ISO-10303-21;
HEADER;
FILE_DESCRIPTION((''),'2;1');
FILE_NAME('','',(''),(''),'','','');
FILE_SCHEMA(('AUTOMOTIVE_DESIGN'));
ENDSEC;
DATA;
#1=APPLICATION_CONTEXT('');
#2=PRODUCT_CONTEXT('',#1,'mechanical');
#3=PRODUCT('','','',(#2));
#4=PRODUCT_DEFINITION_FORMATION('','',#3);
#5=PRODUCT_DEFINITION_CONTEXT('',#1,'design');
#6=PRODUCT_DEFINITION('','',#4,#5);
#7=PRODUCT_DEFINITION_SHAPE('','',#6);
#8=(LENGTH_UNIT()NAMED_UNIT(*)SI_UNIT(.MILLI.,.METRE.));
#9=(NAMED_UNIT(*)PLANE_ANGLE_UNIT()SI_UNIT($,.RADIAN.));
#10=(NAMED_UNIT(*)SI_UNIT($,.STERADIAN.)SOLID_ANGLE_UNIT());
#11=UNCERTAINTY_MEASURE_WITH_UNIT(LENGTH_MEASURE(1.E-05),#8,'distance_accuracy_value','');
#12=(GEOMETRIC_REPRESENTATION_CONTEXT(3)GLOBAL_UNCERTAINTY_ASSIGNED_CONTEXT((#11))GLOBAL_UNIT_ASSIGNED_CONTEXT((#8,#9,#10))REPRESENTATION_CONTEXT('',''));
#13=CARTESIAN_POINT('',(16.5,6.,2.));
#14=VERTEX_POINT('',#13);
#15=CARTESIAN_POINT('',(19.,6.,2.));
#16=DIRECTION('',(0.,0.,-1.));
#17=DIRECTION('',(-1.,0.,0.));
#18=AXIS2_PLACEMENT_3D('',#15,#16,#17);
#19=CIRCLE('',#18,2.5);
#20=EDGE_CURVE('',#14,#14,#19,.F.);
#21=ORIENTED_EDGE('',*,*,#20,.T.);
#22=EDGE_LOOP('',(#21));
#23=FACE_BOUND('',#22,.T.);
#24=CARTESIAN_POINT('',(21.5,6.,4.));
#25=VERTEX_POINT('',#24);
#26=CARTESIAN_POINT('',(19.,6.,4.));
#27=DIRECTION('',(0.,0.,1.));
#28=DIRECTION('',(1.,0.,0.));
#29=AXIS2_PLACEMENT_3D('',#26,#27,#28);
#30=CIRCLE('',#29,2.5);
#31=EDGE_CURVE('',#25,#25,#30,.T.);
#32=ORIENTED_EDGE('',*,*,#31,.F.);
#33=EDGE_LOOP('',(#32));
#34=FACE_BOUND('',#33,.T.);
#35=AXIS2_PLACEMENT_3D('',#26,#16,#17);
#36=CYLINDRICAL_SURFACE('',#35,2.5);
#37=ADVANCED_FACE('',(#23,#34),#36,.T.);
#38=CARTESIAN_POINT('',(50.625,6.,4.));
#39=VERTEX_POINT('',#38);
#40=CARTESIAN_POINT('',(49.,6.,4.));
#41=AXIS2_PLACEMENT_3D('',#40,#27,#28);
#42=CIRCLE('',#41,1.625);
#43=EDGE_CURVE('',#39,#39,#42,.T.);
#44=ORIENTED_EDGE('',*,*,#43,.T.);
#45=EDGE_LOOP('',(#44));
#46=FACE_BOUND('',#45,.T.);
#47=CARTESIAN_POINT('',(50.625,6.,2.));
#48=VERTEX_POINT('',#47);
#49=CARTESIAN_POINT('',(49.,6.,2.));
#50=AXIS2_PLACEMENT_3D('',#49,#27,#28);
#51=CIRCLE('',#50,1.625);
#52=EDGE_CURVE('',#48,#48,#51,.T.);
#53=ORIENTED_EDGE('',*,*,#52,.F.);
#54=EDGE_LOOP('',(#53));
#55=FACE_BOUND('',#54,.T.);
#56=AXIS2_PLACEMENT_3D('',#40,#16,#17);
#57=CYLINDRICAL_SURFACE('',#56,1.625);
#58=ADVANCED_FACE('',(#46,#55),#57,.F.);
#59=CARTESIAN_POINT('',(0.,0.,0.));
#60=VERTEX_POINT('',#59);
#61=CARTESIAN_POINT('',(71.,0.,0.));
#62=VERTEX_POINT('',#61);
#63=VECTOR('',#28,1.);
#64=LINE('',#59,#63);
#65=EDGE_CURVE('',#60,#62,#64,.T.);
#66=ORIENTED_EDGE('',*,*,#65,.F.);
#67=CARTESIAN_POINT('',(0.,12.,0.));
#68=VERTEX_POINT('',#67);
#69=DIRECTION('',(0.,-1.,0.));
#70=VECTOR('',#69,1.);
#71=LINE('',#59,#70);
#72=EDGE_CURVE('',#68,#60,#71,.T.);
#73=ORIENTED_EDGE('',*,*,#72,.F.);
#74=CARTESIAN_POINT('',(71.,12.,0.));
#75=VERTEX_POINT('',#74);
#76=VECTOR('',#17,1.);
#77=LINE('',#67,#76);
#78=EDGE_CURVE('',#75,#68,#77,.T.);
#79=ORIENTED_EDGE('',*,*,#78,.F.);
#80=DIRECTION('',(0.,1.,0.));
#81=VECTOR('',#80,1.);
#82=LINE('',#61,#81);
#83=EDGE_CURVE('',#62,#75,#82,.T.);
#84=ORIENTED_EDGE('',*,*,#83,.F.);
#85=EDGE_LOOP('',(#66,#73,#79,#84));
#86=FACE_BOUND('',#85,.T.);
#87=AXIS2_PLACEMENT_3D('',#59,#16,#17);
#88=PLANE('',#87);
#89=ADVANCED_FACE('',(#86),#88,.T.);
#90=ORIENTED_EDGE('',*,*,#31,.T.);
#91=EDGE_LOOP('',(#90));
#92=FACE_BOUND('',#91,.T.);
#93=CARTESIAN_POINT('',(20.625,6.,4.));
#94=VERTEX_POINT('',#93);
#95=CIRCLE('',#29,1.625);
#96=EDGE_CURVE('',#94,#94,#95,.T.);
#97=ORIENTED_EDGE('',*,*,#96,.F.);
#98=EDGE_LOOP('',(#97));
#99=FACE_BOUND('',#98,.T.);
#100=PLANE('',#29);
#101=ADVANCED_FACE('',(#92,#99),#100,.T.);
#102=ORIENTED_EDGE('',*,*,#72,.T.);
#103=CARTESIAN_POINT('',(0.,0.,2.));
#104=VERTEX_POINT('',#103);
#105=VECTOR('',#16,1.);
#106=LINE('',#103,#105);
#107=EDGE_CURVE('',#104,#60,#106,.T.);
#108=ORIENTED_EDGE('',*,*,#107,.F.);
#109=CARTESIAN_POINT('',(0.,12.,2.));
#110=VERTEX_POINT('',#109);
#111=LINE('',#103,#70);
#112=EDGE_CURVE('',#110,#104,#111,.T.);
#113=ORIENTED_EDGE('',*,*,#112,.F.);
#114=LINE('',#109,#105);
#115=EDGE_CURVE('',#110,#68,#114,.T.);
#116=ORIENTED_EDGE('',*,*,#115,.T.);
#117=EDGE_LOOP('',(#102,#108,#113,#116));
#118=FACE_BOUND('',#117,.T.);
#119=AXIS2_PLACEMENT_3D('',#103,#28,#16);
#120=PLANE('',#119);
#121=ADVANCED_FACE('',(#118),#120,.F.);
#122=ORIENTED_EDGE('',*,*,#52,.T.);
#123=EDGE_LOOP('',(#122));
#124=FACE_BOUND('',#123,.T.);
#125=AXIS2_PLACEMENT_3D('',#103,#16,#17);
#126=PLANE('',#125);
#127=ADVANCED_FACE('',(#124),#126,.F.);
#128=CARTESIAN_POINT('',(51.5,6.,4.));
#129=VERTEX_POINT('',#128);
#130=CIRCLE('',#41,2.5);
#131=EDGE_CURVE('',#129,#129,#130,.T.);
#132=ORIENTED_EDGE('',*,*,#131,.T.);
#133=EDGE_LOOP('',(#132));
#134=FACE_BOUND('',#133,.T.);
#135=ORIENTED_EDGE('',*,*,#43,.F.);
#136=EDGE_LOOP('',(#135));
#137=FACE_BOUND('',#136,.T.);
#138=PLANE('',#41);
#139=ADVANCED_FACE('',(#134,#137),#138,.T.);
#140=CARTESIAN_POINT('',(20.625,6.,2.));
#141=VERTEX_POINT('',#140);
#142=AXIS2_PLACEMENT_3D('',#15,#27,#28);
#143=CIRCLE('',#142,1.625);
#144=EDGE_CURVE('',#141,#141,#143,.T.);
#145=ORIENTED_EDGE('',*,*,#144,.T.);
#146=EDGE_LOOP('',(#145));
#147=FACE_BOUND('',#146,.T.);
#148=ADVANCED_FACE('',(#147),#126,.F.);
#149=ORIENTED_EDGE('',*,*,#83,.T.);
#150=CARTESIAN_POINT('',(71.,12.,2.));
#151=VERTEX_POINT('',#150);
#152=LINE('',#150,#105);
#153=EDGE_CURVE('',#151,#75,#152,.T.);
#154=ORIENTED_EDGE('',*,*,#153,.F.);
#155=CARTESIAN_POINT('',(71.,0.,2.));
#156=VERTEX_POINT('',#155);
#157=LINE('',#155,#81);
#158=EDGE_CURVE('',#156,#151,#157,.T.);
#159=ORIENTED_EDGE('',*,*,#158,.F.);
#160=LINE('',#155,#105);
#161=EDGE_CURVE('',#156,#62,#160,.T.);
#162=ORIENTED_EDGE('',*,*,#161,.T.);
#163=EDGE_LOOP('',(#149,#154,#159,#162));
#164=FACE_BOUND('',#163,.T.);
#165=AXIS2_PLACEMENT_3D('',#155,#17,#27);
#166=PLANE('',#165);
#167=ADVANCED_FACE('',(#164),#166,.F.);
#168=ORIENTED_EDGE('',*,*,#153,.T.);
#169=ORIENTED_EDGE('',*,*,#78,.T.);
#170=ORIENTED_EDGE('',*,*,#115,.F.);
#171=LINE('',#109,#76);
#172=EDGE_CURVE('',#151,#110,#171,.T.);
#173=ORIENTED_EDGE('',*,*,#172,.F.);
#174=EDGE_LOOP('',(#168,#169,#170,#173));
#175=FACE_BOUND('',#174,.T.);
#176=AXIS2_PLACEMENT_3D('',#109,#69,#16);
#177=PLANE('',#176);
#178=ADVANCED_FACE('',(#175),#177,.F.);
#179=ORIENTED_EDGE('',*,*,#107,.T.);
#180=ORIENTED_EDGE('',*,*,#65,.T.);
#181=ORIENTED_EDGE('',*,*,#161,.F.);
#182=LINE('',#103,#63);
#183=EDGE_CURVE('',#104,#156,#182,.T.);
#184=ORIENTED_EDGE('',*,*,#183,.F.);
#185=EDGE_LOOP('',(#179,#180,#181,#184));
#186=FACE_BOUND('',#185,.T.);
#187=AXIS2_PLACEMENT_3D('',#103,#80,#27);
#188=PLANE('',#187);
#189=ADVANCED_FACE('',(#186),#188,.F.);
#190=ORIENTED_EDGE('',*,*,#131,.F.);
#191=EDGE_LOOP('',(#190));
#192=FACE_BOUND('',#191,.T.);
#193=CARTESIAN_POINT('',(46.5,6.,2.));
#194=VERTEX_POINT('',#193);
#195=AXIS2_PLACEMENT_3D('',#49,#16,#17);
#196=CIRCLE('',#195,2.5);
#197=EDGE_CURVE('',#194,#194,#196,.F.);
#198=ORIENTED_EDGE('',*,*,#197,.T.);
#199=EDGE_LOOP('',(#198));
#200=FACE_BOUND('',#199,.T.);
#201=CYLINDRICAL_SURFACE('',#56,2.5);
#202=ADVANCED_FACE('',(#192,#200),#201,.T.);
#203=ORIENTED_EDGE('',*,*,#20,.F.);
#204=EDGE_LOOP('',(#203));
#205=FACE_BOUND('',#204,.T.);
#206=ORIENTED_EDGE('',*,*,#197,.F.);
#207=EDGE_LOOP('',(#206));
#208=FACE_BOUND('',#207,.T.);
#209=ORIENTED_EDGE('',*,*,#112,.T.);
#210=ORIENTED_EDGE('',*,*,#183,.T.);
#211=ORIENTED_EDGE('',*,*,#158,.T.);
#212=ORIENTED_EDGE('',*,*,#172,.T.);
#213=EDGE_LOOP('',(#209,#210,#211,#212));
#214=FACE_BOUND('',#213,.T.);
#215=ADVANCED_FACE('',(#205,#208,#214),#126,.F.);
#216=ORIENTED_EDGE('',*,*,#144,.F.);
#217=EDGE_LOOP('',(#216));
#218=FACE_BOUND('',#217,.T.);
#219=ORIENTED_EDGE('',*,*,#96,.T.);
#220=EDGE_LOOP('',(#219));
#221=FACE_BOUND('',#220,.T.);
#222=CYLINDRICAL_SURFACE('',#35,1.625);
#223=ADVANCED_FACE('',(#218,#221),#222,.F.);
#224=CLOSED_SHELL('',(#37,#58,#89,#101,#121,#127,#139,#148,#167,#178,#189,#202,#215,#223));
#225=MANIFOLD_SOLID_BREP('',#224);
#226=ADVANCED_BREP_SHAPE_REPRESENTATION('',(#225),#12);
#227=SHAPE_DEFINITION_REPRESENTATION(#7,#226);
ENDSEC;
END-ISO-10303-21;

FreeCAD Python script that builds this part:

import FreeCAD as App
import Part
import Sketcher
from FreeCAD import Vector


def add_polygon(sketch, points):
    """Adds a closed chain of lines whose ends are joined by coincident constraints."""
    first, n = sketch.GeometryCount, len(points)
    for a, b in zip(points, points[1:] + points[:1]):
        sketch.addGeometry(Part.LineSegment(App.Vector(*a, 0), App.Vector(*b, 0)), False)
    for i in range(n):
        sketch.addConstraint(Sketcher.Constraint("Coincident", first + i, 2, first + (i + 1) % n, 1))

doc = App.newDocument("Part")
body = doc.addObject("PartDesign::Body", "Body")

sketch1 = body.newObject("Sketcher::SketchObject", "Sketch")
sketch1.AttachmentSupport = (doc.getObject("XY_Plane"), [""])
sketch1.MapMode = "FlatFace"
add_polygon(sketch1, [(0, 12), (0, 0), (71, 0), (71, 12)])
sketch1.addConstraint(Sketcher.Constraint("Vertical", 0))
sketch1.addConstraint(Sketcher.Constraint("Horizontal", 1))
sketch1.addConstraint(Sketcher.Constraint("Vertical", 2))
sketch1.addConstraint(Sketcher.Constraint("Horizontal", 3))
sketch1.addConstraint(Sketcher.Constraint("Coincident", 0, 2, -1, 1))
sketch1.addConstraint(Sketcher.Constraint("DistanceX", 1, 1, 1, 2, 71.0))
sketch1.addConstraint(Sketcher.Constraint("DistanceY", 0, 2, 0, 1, 12.0))
pad1 = body.newObject("PartDesign::Pad", "Pad")
pad1.Profile = sketch1
pad1.Length = 2

sketch2 = body.newObject("Sketcher::SketchObject", "Sketch001")
sketch2.AttachmentSupport = (doc.getObject("XY_Plane"), [""])
sketch2.MapMode = "FlatFace"
sketch2.AttachmentOffset = App.Placement(Vector(0, 0, 2), App.Rotation())
sketch2.addGeometry(Part.Circle(Vector(19, 6, 0), Vector(0, 0, 1), 2.5), False)
sketch2.addGeometry(Part.Circle(Vector(19, 6, 0), Vector(0, 0, 1), 1.6), False)
sketch2.addGeometry(Part.Circle(Vector(49, 6, 0), Vector(0, 0, 1), 2.5), False)
sketch2.addGeometry(Part.Circle(Vector(49, 6, 0), Vector(0, 0, 1), 1.6), False)
sketch2.addConstraint(Sketcher.Constraint("Coincident", 1, 3, 0, 3))
sketch2.addConstraint(Sketcher.Constraint("Coincident", 3, 3, 2, 3))
sketch2.addConstraint(Sketcher.Constraint("Equal", 0, 2))
sketch2.addConstraint(Sketcher.Constraint("Equal", 1, 3))
sketch2.addConstraint(Sketcher.Constraint("Horizontal", 1, 3, 2, 3))
sketch2.addConstraint(Sketcher.Constraint("Diameter", 0, 5.0))
sketch2.addConstraint(Sketcher.Constraint("Diameter", 1, 3.25))
sketch2.addConstraint(Sketcher.Constraint("DistanceX", -1, 1, 0, 3, 19.0))
sketch2.addConstraint(Sketcher.Constraint("DistanceY", -1, 1, 0, 3, 6.0))
sketch2.addConstraint(Sketcher.Constraint("DistanceX", -1, 1, 2, 3, 49.0))
pad2 = body.newObject("PartDesign::Pad", "Pad001")
pad2.Profile = sketch2
pad2.Length = 2

doc.recompute()
